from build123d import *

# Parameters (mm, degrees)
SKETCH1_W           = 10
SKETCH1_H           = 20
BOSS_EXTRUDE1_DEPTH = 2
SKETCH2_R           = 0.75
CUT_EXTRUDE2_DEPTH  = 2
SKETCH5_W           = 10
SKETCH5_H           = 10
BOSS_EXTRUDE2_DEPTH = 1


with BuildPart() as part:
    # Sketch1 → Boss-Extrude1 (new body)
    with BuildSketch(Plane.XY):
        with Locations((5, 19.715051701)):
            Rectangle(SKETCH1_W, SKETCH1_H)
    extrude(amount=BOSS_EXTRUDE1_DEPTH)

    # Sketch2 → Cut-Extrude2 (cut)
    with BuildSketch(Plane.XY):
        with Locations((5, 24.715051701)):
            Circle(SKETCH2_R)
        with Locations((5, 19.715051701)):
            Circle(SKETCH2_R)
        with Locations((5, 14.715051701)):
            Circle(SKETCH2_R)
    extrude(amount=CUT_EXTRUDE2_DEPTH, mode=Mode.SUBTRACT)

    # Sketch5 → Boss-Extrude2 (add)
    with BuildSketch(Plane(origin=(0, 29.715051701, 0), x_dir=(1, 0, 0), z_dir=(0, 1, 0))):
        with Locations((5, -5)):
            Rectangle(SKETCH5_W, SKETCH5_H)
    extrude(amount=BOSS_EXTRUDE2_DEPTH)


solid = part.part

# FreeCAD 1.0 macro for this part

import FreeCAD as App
import Part
import Sketcher

V = App.Vector
Q = App.Units.Quantity

doc = App.newDocument("Part")
body = doc.addObject("PartDesign::Body", "Body")

sketch1 = body.newObject("Sketcher::SketchObject", "Sketch")
sketch1.AttachmentSupport = (doc.getObject("XY_Plane"), [""])
sketch1.MapMode = "FlatFace"
sketch1.addGeometry(Part.LineSegment(V(0, 30, 0), V(0, 10, 0)), False)
sketch1.addGeometry(Part.LineSegment(V(0, 10, 0), V(10, 10, 0)), False)
sketch1.addGeometry(Part.LineSegment(V(10, 10, 0), V(10, 30, 0)), False)
sketch1.addGeometry(Part.LineSegment(V(10, 30, 0), V(0, 30, 0)), False)
sketch1.addConstraint(Sketcher.Constraint("Coincident", 0, 2, 1, 1))
sketch1.addConstraint(Sketcher.Constraint("Coincident", 1, 2, 2, 1))
sketch1.addConstraint(Sketcher.Constraint("Coincident", 2, 2, 3, 1))
sketch1.addConstraint(Sketcher.Constraint("Coincident", 3, 2, 0, 1))
sketch1.addConstraint(Sketcher.Constraint("Vertical", 0))
sketch1.addConstraint(Sketcher.Constraint("Horizontal", 1))
sketch1.addConstraint(Sketcher.Constraint("Vertical", 2))
sketch1.addConstraint(Sketcher.Constraint("Horizontal", 3))
sketch1.addConstraint(Sketcher.Constraint("PointOnObject", 0, 2, -2))
sketch1.addConstraint(Sketcher.Constraint("DistanceX", 1, 1, 1, 2, Q("10 mm")))
sketch1.addConstraint(Sketcher.Constraint("DistanceY", 0, 2, 0, 1, Q("20 mm")))
sketch1.addConstraint(Sketcher.Constraint("DistanceY", -1, 1, 0, 2, Q("9.715052 mm")))
pad1 = body.newObject("PartDesign::Pad", "Pad")
pad1.Profile = sketch1
pad1.Length = 2

sketch2 = body.newObject("Sketcher::SketchObject", "Sketch001")
sketch2.AttachmentSupport = (doc.getObject("XY_Plane"), [""])
sketch2.MapMode = "FlatFace"
sketch2.addGeometry(Part.Circle(V(5, 24.7, 0), V(0, 0, 1), 0.8), False)
sketch2.addGeometry(Part.Circle(V(5, 19.7, 0), V(0, 0, 1), 0.8), False)
sketch2.addGeometry(Part.Circle(V(5, 14.7, 0), V(0, 0, 1), 0.8), False)
sketch2.addConstraint(Sketcher.Constraint("Equal", 0, 1))
sketch2.addConstraint(Sketcher.Constraint("Equal", 1, 2))
sketch2.addConstraint(Sketcher.Constraint("Vertical", 0, 3, 1, 3))
sketch2.addConstraint(Sketcher.Constraint("Vertical", 1, 3, 2, 3))
sketch2.addConstraint(Sketcher.Constraint("Diameter", 0, Q("1.5 mm")))
sketch2.addConstraint(Sketcher.Constraint("DistanceX", -1, 1, 0, 3, Q("5 mm")))
sketch2.addConstraint(Sketcher.Constraint("DistanceY", 1, 3, 0, 3, Q("5 mm")))
sketch2.addConstraint(Sketcher.Constraint("DistanceY", 2, 3, 1, 3, Q("5 mm")))
sketch2.addConstraint(Sketcher.Constraint("DistanceY", -1, 1, 0, 3, Q("24.715052 mm")))
pocket1 = body.newObject("PartDesign::Pocket", "Pocket")
pocket1.Profile = sketch2
pocket1.Length = 2
pocket1.Reversed = True

sketch3 = body.newObject("Sketcher::SketchObject", "Sketch002")
sketch3.AttachmentSupport = (doc.getObject("XZ_Plane"), [""])
sketch3.MapMode = "FlatFace"
sketch3.AttachmentOffset = App.Placement(V(0, 0, -29.715052), App.Rotation())
sketch3.addGeometry(Part.LineSegment(V(0, 0, 0), V(0, 10, 0)), False)
sketch3.addGeometry(Part.LineSegment(V(0, 10, 0), V(10, 10, 0)), False)
sketch3.addGeometry(Part.LineSegment(V(10, 10, 0), V(10, 0, 0)), False)
sketch3.addGeometry(Part.LineSegment(V(10, 0, 0), V(0, 0, 0)), False)
sketch3.addConstraint(Sketcher.Constraint("Coincident", 0, 2, 1, 1))
sketch3.addConstraint(Sketcher.Constraint("Coincident", 1, 2, 2, 1))
sketch3.addConstraint(Sketcher.Constraint("Coincident", 2, 2, 3, 1))
sketch3.addConstraint(Sketcher.Constraint("Coincident", 3, 2, 0, 1))
sketch3.addConstraint(Sketcher.Constraint("Vertical", 0))
sketch3.addConstraint(Sketcher.Constraint("Horizontal", 1))
sketch3.addConstraint(Sketcher.Constraint("Vertical", 2))
sketch3.addConstraint(Sketcher.Constraint("Horizontal", 3))
sketch3.addConstraint(Sketcher.Constraint("Coincident", 3, 2, -1, 1))
sketch3.addConstraint(Sketcher.Constraint("Equal", 3, 0))
sketch3.addConstraint(Sketcher.Constraint("DistanceX", 1, 1, 1, 2, Q("10 mm")))
pad2 = body.newObject("PartDesign::Pad", "Pad001")
pad2.Profile = sketch3
pad2.Length = 1
pad2.Reversed = True

doc.recompute()
